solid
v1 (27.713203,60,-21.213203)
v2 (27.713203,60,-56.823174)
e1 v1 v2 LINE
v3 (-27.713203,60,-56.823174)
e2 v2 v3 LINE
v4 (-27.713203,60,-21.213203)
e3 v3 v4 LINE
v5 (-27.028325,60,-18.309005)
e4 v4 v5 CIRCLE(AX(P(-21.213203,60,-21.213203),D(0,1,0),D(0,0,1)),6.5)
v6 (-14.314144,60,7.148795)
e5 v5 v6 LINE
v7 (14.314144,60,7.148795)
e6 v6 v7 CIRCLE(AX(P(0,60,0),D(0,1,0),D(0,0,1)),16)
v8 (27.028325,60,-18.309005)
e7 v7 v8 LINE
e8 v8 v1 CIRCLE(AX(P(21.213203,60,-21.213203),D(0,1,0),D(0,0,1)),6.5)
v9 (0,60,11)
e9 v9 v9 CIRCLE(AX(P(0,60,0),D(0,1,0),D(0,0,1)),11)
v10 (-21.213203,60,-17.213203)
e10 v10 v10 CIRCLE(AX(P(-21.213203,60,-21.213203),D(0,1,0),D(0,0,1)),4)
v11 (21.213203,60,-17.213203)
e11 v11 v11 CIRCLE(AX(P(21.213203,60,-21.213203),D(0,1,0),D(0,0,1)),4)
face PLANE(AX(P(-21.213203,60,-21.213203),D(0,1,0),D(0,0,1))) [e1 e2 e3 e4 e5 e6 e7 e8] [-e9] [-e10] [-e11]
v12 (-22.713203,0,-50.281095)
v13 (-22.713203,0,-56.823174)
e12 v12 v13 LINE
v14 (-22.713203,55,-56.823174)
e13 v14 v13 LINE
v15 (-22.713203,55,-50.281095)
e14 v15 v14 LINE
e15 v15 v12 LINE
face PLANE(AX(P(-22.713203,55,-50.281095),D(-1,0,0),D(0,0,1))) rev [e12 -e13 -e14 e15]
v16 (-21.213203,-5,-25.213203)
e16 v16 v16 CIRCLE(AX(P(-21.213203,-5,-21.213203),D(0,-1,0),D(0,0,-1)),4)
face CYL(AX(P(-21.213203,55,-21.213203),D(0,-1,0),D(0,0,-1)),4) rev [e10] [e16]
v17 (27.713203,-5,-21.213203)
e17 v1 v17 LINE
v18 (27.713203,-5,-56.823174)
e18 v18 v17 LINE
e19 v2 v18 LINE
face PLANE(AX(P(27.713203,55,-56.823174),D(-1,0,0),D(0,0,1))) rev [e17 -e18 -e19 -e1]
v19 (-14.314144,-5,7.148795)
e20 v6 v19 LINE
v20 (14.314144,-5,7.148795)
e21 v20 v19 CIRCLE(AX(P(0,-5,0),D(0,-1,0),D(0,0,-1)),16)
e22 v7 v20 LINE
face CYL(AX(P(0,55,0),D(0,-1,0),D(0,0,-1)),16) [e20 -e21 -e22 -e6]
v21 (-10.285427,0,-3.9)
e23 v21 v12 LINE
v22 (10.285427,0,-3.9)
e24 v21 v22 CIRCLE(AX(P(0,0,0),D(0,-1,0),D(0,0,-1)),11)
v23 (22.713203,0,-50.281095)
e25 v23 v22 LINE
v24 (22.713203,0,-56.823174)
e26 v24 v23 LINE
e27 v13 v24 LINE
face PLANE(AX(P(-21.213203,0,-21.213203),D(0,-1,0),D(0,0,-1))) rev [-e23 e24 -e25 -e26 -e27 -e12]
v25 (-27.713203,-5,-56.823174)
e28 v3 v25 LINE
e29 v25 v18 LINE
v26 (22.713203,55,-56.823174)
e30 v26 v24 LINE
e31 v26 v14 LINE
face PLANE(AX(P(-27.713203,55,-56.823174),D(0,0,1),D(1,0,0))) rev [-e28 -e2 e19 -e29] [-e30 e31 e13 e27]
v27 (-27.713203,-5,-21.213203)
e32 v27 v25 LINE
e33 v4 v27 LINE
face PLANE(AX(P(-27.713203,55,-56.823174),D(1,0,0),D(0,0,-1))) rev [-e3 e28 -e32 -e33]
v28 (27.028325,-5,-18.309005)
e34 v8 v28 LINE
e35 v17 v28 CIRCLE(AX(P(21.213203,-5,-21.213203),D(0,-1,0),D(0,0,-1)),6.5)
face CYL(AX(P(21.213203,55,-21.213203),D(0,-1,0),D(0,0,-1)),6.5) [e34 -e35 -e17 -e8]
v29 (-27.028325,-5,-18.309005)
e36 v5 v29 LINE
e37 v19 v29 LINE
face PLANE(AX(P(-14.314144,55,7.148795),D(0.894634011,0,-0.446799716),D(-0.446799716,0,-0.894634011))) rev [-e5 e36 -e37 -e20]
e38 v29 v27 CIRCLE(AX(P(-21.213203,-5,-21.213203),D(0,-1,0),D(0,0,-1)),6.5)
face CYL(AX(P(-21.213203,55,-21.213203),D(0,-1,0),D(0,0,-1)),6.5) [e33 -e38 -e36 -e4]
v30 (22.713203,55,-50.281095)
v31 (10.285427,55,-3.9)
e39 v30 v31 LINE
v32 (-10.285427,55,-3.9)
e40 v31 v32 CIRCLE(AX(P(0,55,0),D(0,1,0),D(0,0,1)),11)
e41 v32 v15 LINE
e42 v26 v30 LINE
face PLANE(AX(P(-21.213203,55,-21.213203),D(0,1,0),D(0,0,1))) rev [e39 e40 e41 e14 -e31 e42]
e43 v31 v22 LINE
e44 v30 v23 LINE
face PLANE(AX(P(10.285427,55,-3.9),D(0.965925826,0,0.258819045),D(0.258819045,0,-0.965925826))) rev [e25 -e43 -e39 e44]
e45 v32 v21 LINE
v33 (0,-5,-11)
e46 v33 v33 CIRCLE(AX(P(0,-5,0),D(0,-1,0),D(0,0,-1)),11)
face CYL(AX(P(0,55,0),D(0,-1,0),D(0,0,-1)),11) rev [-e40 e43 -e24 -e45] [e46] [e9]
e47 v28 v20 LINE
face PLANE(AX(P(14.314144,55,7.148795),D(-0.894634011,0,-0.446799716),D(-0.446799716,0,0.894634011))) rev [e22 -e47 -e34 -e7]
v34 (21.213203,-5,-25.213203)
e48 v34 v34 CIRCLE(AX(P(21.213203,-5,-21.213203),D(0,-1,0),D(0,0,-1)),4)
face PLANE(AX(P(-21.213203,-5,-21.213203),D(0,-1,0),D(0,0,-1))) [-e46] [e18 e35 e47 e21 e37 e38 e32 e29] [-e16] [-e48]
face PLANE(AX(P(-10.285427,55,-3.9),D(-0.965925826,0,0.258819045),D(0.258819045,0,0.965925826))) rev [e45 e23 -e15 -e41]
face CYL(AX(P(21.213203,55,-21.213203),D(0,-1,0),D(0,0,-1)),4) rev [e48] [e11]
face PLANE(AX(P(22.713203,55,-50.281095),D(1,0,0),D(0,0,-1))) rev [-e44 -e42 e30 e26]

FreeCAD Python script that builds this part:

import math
import FreeCAD as App
import Part
import Sketcher
Q = App.Units.Quantity

doc = App.newDocument("Part")
params = doc.addObject("Spreadsheet::Sheet", "Params")
for row, (alias, value) in enumerate([
    ("sketch1_diameter", "8 mm"),
    ("sketch1_radius", "11 mm"),
    ("sketch1_radius2", "16 mm"),
    ("sketch1_radius3", "6.5 mm"),
    ("sketch1_width", "5 mm"),
    ("pad1_length", "55 mm"),
    ("sketch2_diameter", "22 mm"),
    ("sketch2_diameter2", "8 mm"),
    ("sketch2_radius", "16 mm"),
    ("sketch2_radius2", "6.5 mm"),
    ("pad2_length", "5 mm"),
    ("sketch3_diameter", "8 mm"),
    ("sketch3_diameter2", "22 mm"),
    ("sketch3_radius", "16 mm"),
    ("sketch3_radius2", "6.5 mm"),
    ("pad3_length", "5 mm"),
], start=1):
    params.set(f"A{row}", alias)
    params.set(f"B{row}", "=" + value)
    params.setAlias(f"B{row}", alias)

body = doc.addObject("PartDesign::Body", "Body")

sketch1 = doc.addObject("Sketcher::SketchObject", "Sketch")
body.addObject(sketch1)
sketch1.AttachmentSupport = (doc.XZ_Plane, [""])
sketch1.MapMode = "FlatFace"
sketch1.addGeometry(Part.LineSegment(App.Vector(14.3, 7.1, 0), App.Vector(27, -18.3, 0)), False)
sketch1.addGeometry(Part.ArcOfCircle(Part.Circle(App.Vector(21.2, -21.2, 0), App.Vector(0, 0, 1), 6.5), math.radians(0), math.radians(27)), False)
sketch1.addGeometry(Part.LineSegment(App.Vector(27.7, -21.2, 0), App.Vector(27.7, -56.8, 0)), False)
sketch1.addGeometry(Part.LineSegment(App.Vector(27.7, -56.8, 0), App.Vector(22.7, -56.8, 0)), False)
sketch1.addGeometry(Part.LineSegment(App.Vector(22.7, -56.8, 0), App.Vector(22.7, -50.3, 0)), False)
sketch1.addGeometry(Part.LineSegment(App.Vector(22.7, -50.3, 0), App.Vector(10.3, -3.9, 0)), False)
sketch1.addGeometry(Part.ArcOfCircle(Part.Circle(App.Vector(0, 0, 0), App.Vector(0, 0, 1), 11), math.radians(-21), math.radians(201)), False)
sketch1.addGeometry(Part.LineSegment(App.Vector(-10.3, -3.9, 0), App.Vector(-22.7, -50.3, 0)), False)
sketch1.addGeometry(Part.LineSegment(App.Vector(-22.7, -50.3, 0), App.Vector(-22.7, -56.8, 0)), False)
sketch1.addGeometry(Part.LineSegment(App.Vector(-22.7, -56.8, 0), App.Vector(-27.7, -56.8, 0)), False)
sketch1.addGeometry(Part.LineSegment(App.Vector(-27.7, -56.8, 0), App.Vector(-27.7, -21.2, 0)), False)
sketch1.addGeometry(Part.ArcOfCircle(Part.Circle(App.Vector(-21.2, -21.2, 0), App.Vector(0, 0, 1), 6.5), math.radians(153), math.radians(180)), False)
sketch1.addGeometry(Part.LineSegment(App.Vector(-27, -18.3, 0), App.Vector(-14.3, 7.1, 0)), False)
sketch1.addGeometry(Part.ArcOfCircle(Part.Circle(App.Vector(0, 0, 0), App.Vector(0, 0, 1), 16), math.radians(27), math.radians(153)), False)
sketch1.addGeometry(Part.Circle(App.Vector(-21.2, -21.2, 0), App.Vector(0, 0, 1), 4), False)
sketch1.addGeometry(Part.Circle(App.Vector(21.2, -21.2, 0), App.Vector(0, 0, 1), 4), False)
sketch1.addConstraint(Sketcher.Constraint("Tangent", 0, 2, 1, 2))
sketch1.addConstraint(Sketcher.Constraint("Tangent", 1, 1, 2, 1))
sketch1.addConstraint(Sketcher.Constraint("Coincident", 2, 2, 3, 1))
sketch1.addConstraint(Sketcher.Constraint("Coincident", 3, 2, 4, 1))
sketch1.addConstraint(Sketcher.Constraint("Coincident", 4, 2, 5, 1))
sketch1.addConstraint(Sketcher.Constraint("Coincident", 5, 2, 6, 1))
sketch1.addConstraint(Sketcher.Constraint("Coincident", 6, 2, 7, 1))
sketch1.addConstraint(Sketcher.Constraint("Coincident", 7, 2, 8, 1))
sketch1.addConstraint(Sketcher.Constraint("Coincident", 8, 2, 9, 1))
sketch1.addConstraint(Sketcher.Constraint("Coincident", 9, 2, 10, 1))
sketch1.addConstraint(Sketcher.Constraint("Tangent", 10, 2, 11, 2))
sketch1.addConstraint(Sketcher.Constraint("Tangent", 11, 1, 12, 1))
sketch1.addConstraint(Sketcher.Constraint("Tangent", 12, 2, 13, 2))
sketch1.addConstraint(Sketcher.Constraint("Tangent", 13, 1, 0, 1))
sketch1.addConstraint(Sketcher.Constraint("Vertical", 2))
sketch1.addConstraint(Sketcher.Constraint("Horizontal", 3))
sketch1.addConstraint(Sketcher.Constraint("Vertical", 4))
sketch1.addConstraint(Sketcher.Constraint("Vertical", 8))
sketch1.addConstraint(Sketcher.Constraint("Horizontal", 9))
sketch1.addConstraint(Sketcher.Constraint("Vertical", 10))
sketch1.addConstraint(Sketcher.Constraint("Coincident", 6, 3, -1, 1))
sketch1.addConstraint(Sketcher.Constraint("Coincident", 13, 3, -1, 1))
sketch1.addConstraint(Sketcher.Constraint("Coincident", 14, 3, 11, 3))
sketch1.addConstraint(Sketcher.Constraint("Coincident", 15, 3, 1, 3))
sketch1.addConstraint(Sketcher.Constraint("Equal", 1, 11))
sketch1.addConstraint(Sketcher.Constraint("Equal", 14, 15))
sketch1.addConstraint(Sketcher.Constraint("Symmetric", 1, 3, 11, 3, -2))
sketch1.addConstraint(Sketcher.Constraint("Symmetric", 4, 2, 7, 2, -2))
sketch1.addConstraint(Sketcher.Constraint("Horizontal", 5, 2, 6, 2))
sketch1.addConstraint(Sketcher.Constraint("Horizontal", 3, 2, 8, 2))
sketch1.addConstraint(Sketcher.Constraint("Diameter", 14, 8.0))
sketch1.addConstraint(Sketcher.Constraint("Radius", 6, 11.0))
sketch1.addConstraint(Sketcher.Constraint("Radius", 13, 16.0))
sketch1.addConstraint(Sketcher.Constraint("Radius", 1, 6.5))
sketch1.addConstraint(Sketcher.Constraint("DistanceX", 3, 2, 3, 1, 5.0))
sketch1.addConstraint(Sketcher.Constraint("Angle", 5, Q("105 deg")))
sketch1.addConstraint(Sketcher.Constraint("DistanceY", 5, 2, -1, 1, 3.9))
sketch1.addConstraint(Sketcher.Constraint("DistanceY", 2, 2, 2, 1, 35.609971))
sketch1.addConstraint(Sketcher.Constraint("DistanceY", 4, 1, 4, 2, 6.54208))
sketch1.addConstraint(Sketcher.Constraint("DistanceY", 15, 3, 0, 2, 2.904198))
sketch1.setExpression("Constraints[30]", "Params.sketch1_diameter")
sketch1.setExpression("Constraints[31]", "Params.sketch1_radius")
sketch1.setExpression("Constraints[32]", "Params.sketch1_radius2")
sketch1.setExpression("Constraints[33]", "Params.sketch1_radius3")
sketch1.setExpression("Constraints[34]", "Params.sketch1_width")
pad1 = doc.addObject("PartDesign::Pad", "Pad")
body.addObject(pad1)
pad1.Profile = sketch1
pad1.setExpression("Length", "Params.pad1_length")
pad1.Reversed = True

sketch2 = doc.addObject("Sketcher::SketchObject", "Sketch001")
body.addObject(sketch2)
sketch2.AttachmentSupport = (doc.XZ_Plane, [""])
sketch2.MapMode = "FlatFace"
sketch2.AttachmentOffset = App.Placement(App.Vector(0, 0, -55), App.Rotation())
sketch2.addGeometry(Part.LineSegment(App.Vector(-27.7, -56.8, 0), App.Vector(-27.7, -21.2, 0)), False)
sketch2.addGeometry(Part.ArcOfCircle(Part.Circle(App.Vector(-21.2, -21.2, 0), App.Vector(0, 0, 1), 6.5), math.radians(153), math.radians(180)), False)
sketch2.addGeometry(Part.LineSegment(App.Vector(-27, -18.3, 0), App.Vector(-14.3, 7.1, 0)), False)
sketch2.addGeometry(Part.ArcOfCircle(Part.Circle(App.Vector(0, 0, 0), App.Vector(0, 0, 1), 16), math.radians(27), math.radians(153)), False)
sketch2.addGeometry(Part.LineSegment(App.Vector(14.3, 7.1, 0), App.Vector(27, -18.3, 0)), False)
sketch2.addGeometry(Part.ArcOfCircle(Part.Circle(App.Vector(21.2, -21.2, 0), App.Vector(0, 0, 1), 6.5), math.radians(0), math.radians(27)), False)
sketch2.addGeometry(Part.LineSegment(App.Vector(27.7, -21.2, 0), App.Vector(27.7, -56.8, 0)), False)
sketch2.addGeometry(Part.LineSegment(App.Vector(27.7, -56.8, 0), App.Vector(-27.7, -56.8, 0)), False)
sketch2.addGeometry(Part.Circle(App.Vector(0, 0, 0), App.Vector(0, 0, 1), 11), False)
sketch2.addGeometry(Part.Circle(App.Vector(21.2, -21.2, 0), App.Vector(0, 0, 1), 4), False)
sketch2.addGeometry(Part.Circle(App.Vector(-21.2, -21.2, 0), App.Vector(0, 0, 1), 4), False)
sketch2.addConstraint(Sketcher.Constraint("Tangent", 0, 2, 1, 2))
sketch2.addConstraint(Sketcher.Constraint("Tangent", 1, 1, 2, 1))
sketch2.addConstraint(Sketcher.Constraint("Tangent", 2, 2, 3, 2))
sketch2.addConstraint(Sketcher.Constraint("Tangent", 3, 1, 4, 1))
sketch2.addConstraint(Sketcher.Constraint("Tangent", 4, 2, 5, 2))
sketch2.addConstraint(Sketcher.Constraint("Tangent", 5, 1, 6, 1))
sketch2.addConstraint(Sketcher.Constraint("Coincident", 6, 2, 7, 1))
sketch2.addConstraint(Sketcher.Constraint("Coincident", 7, 2, 0, 1))
sketch2.addConstraint(Sketcher.Constraint("Vertical", 0))
sketch2.addConstraint(Sketcher.Constraint("Vertical", 6))
sketch2.addConstraint(Sketcher.Constraint("Horizontal", 7))
sketch2.addConstraint(Sketcher.Constraint("Coincident", 3, 3, -1, 1))
sketch2.addConstraint(Sketcher.Constraint("Coincident", 8, 3, -1, 1))
sketch2.addConstraint(Sketcher.Constraint("Coincident", 9, 3, 5, 3))
sketch2.addConstraint(Sketcher.Constraint("Coincident", 10, 3, 1, 3))
sketch2.addConstraint(Sketcher.Constraint("Equal", 1, 5))
sketch2.addConstraint(Sketcher.Constraint("Equal", 9, 10))
sketch2.addConstraint(Sketcher.Constraint("Symmetric", 1, 3, 5, 3, -2))
sketch2.addConstraint(Sketcher.Constraint("Diameter", 8, 22.0))
sketch2.addConstraint(Sketcher.Constraint("Diameter", 9, 8.0))
sketch2.addConstraint(Sketcher.Constraint("Radius", 3, 16.0))
sketch2.addConstraint(Sketcher.Constraint("Radius", 1, 6.5))
sketch2.addConstraint(Sketcher.Constraint("DistanceY", 10, 3, 2, 2, 28.361999))
sketch2.addConstraint(Sketcher.Constraint("DistanceY", 0, 1, 0, 2, 35.609971))
sketch2.addConstraint(Sketcher.Constraint("DistanceY", 0, 2, 1, 1, 2.904198))
sketch2.setExpression("Constraints[18]", "Params.sketch2_diameter")
sketch2.setExpression("Constraints[19]", "Params.sketch2_diameter2")
sketch2.setExpression("Constraints[20]", "Params.sketch2_radius")
sketch2.setExpression("Constraints[21]", "Params.sketch2_radius2")
pad2 = doc.addObject("PartDesign::Pad", "Pad001")
body.addObject(pad2)
pad2.Profile = sketch2
pad2.setExpression("Length", "Params.pad2_length")
pad2.Reversed = True

sketch3 = doc.addObject("Sketcher::SketchObject", "Sketch002")
body.addObject(sketch3)
sketch3.AttachmentSupport = (doc.XZ_Plane, [""])
sketch3.MapMode = "FlatFace"
sketch3.addGeometry(Part.LineSegment(App.Vector(-14.3, 7.1, 0), App.Vector(-27, -18.3, 0)), False)
sketch3.addGeometry(Part.ArcOfCircle(Part.Circle(App.Vector(-21.2, -21.2, 0), App.Vector(0, 0, 1), 6.5), math.radians(153), math.radians(180)), False)
sketch3.addGeometry(Part.LineSegment(App.Vector(-27.7, -21.2, 0), App.Vector(-27.7, -56.8, 0)), False)
sketch3.addGeometry(Part.LineSegment(App.Vector(-27.7, -56.8, 0), App.Vector(27.7, -56.8, 0)), False)
sketch3.addGeometry(Part.LineSegment(App.Vector(27.7, -56.8, 0), App.Vector(27.7, -21.2, 0)), False)
sketch3.addGeometry(Part.ArcOfCircle(Part.Circle(App.Vector(21.2, -21.2, 0), App.Vector(0, 0, 1), 6.5), math.radians(0), math.radians(27)), False)
sketch3.addGeometry(Part.LineSegment(App.Vector(27, -18.3, 0), App.Vector(14.3, 7.1, 0)), False)
sketch3.addGeometry(Part.ArcOfCircle(Part.Circle(App.Vector(0, 0, 0), App.Vector(0, 0, 1), 16), math.radians(27), math.radians(153)), False)
sketch3.addGeometry(Part.Circle(App.Vector(21.2, -21.2, 0), App.Vector(0, 0, 1), 4), False)
sketch3.addGeometry(Part.Circle(App.Vector(-21.2, -21.2, 0), App.Vector(0, 0, 1), 4), False)
sketch3.addGeometry(Part.Circle(App.Vector(0, 0, 0), App.Vector(0, 0, 1), 11), False)
sketch3.addConstraint(Sketcher.Constraint("Tangent", 0, 2, 1, 1))
sketch3.addConstraint(Sketcher.Constraint("Tangent", 1, 2, 2, 1))
sketch3.addConstraint(Sketcher.Constraint("Coincident", 2, 2, 3, 1))
sketch3.addConstraint(Sketcher.Constraint("Coincident", 3, 2, 4, 1))
sketch3.addConstraint(Sketcher.Constraint("Tangent", 4, 2, 5, 1))
sketch3.addConstraint(Sketcher.Constraint("Tangent", 5, 2, 6, 1))
sketch3.addConstraint(Sketcher.Constraint("Tangent", 6, 2, 7, 1))
sketch3.addConstraint(Sketcher.Constraint("Tangent", 7, 2, 0, 1))
sketch3.addConstraint(Sketcher.Constraint("Vertical", 2))
sketch3.addConstraint(Sketcher.Constraint("Horizontal", 3))
sketch3.addConstraint(Sketcher.Constraint("Vertical", 4))
sketch3.addConstraint(Sketcher.Constraint("Coincident", 7, 3, -1, 1))
sketch3.addConstraint(Sketcher.Constraint("Coincident", 10, 3, -1, 1))
sketch3.addConstraint(Sketcher.Constraint("Coincident", 8, 3, 5, 3))
sketch3.addConstraint(Sketcher.Constraint("Coincident", 9, 3, 1, 3))
sketch3.addConstraint(Sketcher.Constraint("Equal", 1, 5))
sketch3.addConstraint(Sketcher.Constraint("Equal", 8, 9))
sketch3.addConstraint(Sketcher.Constraint("Symmetric", 1, 3, 5, 3, -2))
sketch3.addConstraint(Sketcher.Constraint("Diameter", 8, 8.0))
sketch3.addConstraint(Sketcher.Constraint("Diameter", 10, 22.0))
sketch3.addConstraint(Sketcher.Constraint("Radius", 7, 16.0))
sketch3.addConstraint(Sketcher.Constraint("Radius", 1, 6.5))
sketch3.addConstraint(Sketcher.Constraint("DistanceY", 8, 3, 6, 2, 28.361999))
sketch3.addConstraint(Sketcher.Constraint("DistanceY", 2, 2, 2, 1, 35.609971))
sketch3.addConstraint(Sketcher.Constraint("DistanceY", 9, 3, 0, 2, 2.904198))
sketch3.setExpression("Constraints[18]", "Params.sketch3_diameter")
sketch3.setExpression("Constraints[19]", "Params.sketch3_diameter2")
sketch3.setExpression("Constraints[20]", "Params.sketch3_radius")
sketch3.setExpression("Constraints[21]", "Params.sketch3_radius2")
pad3 = doc.addObject("PartDesign::Pad", "Pad002")
body.addObject(pad3)
pad3.Profile = sketch3
pad3.setExpression("Length", "Params.pad3_length")

doc.recompute()
